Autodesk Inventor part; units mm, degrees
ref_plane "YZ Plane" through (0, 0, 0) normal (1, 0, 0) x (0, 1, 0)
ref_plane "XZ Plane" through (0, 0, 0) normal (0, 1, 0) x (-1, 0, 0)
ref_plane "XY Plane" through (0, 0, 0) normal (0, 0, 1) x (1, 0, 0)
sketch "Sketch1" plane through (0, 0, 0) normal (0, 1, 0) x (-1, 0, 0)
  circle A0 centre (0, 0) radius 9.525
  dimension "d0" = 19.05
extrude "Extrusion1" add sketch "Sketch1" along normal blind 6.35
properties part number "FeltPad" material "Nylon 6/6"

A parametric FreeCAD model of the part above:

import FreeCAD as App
import Part
import Sketcher
Q = App.Units.Quantity

doc = App.newDocument("Part")
body = doc.addObject("PartDesign::Body", "Body")

# Sketch on XZ plane
sketch1 = body.newObject("Sketcher::SketchObject", "Sketch")
sketch1.AttachmentSupport = (doc.getObject("XZ_Plane"), [""])
sketch1.MapMode = "FlatFace"
sketch1.addGeometry(Part.Circle(App.Vector(0, 0, 0), App.Vector(0, 0, 1), 10), False)
sketch1.addConstraint([
    Sketcher.Constraint("Coincident", 0, 3, -1, 1),
    Sketcher.Constraint("Diameter", 0, Q("0.75 in")),
])
pad1 = body.newObject("PartDesign::Pad", "Pad")
pad1.Profile = sketch1
pad1.Length = Q("0.25 in")
pad1.Reversed = True

doc.recompute()
